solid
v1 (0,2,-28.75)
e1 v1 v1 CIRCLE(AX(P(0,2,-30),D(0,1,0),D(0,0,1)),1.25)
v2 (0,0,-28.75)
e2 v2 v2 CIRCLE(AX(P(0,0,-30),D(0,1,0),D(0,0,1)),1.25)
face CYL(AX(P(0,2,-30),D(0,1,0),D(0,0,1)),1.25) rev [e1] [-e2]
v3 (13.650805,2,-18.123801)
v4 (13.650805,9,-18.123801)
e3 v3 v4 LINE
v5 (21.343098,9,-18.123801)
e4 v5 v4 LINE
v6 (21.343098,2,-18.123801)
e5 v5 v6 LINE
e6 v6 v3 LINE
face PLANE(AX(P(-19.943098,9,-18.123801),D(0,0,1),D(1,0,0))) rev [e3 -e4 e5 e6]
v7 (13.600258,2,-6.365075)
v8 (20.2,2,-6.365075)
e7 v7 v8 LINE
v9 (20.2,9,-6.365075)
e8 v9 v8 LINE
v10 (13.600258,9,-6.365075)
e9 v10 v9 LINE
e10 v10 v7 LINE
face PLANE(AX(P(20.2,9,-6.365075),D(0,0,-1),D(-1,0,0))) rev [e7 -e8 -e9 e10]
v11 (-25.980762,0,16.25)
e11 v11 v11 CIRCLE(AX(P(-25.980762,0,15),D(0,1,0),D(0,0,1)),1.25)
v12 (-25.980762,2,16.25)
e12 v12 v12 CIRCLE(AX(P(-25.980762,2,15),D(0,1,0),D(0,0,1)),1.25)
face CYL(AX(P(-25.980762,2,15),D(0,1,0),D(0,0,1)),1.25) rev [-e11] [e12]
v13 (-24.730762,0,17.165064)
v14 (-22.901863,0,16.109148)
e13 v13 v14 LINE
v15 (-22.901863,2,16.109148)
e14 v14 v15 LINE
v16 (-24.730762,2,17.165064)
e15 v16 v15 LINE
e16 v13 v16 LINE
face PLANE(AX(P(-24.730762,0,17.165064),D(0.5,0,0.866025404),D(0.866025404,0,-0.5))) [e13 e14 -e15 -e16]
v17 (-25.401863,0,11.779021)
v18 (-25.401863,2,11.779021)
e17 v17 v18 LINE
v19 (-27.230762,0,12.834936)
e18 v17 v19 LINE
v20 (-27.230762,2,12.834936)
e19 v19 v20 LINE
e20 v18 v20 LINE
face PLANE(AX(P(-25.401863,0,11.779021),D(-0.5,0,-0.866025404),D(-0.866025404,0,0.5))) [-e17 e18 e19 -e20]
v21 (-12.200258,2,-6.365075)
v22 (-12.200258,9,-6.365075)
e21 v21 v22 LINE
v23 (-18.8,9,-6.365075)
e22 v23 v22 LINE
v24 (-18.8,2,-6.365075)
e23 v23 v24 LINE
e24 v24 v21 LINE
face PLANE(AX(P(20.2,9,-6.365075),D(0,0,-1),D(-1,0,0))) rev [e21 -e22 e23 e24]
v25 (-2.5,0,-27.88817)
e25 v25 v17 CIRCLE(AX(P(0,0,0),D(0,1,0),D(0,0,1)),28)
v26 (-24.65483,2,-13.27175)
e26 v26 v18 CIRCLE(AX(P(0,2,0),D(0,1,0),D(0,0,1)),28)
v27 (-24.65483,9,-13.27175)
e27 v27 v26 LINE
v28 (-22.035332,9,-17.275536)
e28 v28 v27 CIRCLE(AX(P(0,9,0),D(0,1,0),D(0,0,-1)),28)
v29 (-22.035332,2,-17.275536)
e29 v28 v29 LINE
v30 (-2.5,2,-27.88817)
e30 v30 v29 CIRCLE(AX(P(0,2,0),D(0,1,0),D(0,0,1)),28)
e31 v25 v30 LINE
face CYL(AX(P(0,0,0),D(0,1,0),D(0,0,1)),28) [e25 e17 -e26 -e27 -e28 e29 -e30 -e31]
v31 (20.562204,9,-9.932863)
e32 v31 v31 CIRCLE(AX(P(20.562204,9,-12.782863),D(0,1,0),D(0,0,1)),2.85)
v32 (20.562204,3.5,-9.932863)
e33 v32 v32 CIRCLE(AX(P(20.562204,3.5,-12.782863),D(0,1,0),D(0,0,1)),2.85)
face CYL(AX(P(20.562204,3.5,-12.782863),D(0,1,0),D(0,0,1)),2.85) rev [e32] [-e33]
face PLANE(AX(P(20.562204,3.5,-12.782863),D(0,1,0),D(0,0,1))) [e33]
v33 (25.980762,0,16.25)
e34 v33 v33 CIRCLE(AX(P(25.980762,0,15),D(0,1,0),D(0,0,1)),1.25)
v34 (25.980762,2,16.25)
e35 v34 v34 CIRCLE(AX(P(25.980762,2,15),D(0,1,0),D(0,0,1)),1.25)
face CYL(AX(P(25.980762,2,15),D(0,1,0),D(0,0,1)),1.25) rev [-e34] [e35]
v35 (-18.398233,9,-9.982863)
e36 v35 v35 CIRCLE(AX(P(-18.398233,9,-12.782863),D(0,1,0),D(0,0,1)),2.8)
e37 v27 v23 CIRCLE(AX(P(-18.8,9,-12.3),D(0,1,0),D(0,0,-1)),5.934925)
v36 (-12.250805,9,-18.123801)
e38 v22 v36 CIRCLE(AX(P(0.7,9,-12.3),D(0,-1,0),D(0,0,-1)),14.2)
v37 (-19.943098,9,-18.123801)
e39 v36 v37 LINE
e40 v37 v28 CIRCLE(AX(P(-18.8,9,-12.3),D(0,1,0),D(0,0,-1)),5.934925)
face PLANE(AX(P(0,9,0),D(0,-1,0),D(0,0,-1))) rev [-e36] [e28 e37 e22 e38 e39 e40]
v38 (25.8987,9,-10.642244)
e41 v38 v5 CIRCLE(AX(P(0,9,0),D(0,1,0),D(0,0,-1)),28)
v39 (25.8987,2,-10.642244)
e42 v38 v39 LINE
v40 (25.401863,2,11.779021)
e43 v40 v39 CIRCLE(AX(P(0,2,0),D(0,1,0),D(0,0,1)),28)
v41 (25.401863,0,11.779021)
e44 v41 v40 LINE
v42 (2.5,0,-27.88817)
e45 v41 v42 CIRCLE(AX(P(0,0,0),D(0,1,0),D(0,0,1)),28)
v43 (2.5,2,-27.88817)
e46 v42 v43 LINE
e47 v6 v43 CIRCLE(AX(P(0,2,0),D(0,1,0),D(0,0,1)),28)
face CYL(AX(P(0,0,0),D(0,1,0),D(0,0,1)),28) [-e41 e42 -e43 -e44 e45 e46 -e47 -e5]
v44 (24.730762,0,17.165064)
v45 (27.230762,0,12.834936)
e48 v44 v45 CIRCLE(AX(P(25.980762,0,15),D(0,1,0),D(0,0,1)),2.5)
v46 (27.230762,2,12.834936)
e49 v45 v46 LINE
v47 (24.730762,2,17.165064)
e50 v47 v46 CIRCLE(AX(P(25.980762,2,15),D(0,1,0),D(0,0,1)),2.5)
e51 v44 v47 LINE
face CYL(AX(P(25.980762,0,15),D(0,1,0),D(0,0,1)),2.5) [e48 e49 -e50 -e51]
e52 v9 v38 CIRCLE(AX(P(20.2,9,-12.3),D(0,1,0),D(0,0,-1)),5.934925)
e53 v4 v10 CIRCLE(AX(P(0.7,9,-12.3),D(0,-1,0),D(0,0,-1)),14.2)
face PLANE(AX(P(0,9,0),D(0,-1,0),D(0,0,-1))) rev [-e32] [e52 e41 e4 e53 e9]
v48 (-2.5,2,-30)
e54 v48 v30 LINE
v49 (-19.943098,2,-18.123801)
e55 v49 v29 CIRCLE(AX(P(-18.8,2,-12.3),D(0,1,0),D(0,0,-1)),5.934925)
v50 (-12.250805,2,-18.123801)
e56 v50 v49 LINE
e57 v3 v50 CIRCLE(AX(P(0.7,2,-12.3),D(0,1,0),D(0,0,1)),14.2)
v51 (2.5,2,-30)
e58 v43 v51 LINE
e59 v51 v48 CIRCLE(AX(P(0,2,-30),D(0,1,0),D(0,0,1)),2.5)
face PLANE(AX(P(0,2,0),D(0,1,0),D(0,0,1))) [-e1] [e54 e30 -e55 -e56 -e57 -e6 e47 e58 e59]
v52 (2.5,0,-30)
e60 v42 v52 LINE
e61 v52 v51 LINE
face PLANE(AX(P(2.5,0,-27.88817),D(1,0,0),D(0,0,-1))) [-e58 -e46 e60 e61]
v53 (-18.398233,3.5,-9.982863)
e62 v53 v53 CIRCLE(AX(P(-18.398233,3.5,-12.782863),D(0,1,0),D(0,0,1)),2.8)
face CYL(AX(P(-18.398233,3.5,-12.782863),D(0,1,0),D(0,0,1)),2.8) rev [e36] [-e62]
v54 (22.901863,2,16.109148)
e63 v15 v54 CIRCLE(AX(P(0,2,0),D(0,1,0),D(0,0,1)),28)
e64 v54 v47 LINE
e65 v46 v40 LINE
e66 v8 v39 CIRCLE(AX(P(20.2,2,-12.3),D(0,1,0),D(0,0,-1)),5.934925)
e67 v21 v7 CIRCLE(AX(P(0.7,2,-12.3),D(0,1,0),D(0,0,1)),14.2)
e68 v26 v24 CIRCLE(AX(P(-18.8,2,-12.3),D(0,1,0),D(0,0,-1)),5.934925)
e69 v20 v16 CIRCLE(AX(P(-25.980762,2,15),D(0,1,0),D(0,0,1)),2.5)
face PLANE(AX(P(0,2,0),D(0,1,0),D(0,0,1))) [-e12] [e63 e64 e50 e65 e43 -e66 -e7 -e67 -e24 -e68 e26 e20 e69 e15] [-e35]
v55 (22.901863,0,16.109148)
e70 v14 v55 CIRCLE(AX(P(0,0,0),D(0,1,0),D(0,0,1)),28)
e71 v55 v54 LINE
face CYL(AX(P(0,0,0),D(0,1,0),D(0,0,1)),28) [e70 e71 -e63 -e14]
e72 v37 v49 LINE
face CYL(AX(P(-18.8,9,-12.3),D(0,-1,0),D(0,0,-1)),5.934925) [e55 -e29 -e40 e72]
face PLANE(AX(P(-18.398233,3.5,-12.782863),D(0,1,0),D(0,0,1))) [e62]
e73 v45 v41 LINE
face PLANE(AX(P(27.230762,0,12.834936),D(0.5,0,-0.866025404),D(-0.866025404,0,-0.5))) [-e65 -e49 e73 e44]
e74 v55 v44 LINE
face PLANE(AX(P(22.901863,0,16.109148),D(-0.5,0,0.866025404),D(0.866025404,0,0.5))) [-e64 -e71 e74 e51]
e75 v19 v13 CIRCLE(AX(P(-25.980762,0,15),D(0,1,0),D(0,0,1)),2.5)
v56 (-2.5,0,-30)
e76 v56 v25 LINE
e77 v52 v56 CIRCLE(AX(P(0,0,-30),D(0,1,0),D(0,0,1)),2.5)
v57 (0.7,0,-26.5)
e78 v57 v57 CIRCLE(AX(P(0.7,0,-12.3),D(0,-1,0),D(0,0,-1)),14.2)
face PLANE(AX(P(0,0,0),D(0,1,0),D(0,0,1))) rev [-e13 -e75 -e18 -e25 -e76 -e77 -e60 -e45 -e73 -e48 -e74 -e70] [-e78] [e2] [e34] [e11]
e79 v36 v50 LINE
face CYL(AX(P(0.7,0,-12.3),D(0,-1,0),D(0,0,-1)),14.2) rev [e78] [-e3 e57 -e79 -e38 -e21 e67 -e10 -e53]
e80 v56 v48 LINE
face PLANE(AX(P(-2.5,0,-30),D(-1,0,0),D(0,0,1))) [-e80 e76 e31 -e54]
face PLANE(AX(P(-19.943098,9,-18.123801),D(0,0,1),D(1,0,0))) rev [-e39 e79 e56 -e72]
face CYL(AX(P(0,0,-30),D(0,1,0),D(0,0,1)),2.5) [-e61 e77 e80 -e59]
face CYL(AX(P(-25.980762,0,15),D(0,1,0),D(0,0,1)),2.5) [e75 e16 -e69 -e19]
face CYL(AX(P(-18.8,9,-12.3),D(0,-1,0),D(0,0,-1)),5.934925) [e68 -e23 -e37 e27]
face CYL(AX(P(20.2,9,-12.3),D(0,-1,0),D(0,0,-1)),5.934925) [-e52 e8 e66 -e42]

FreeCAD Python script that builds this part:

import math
import FreeCAD as App
import Part
import Sketcher
from FreeCAD import Vector
Q = App.Units.Quantity

doc = App.newDocument("Part")
body = doc.addObject("PartDesign::Body", "Body")

# Sketch on XZ plane
sketch1 = doc.addObject("Sketcher::SketchObject", "Sketch")
body.addObject(sketch1)
sketch1.AttachmentSupport = (doc.XZ_Plane, [""])
sketch1.MapMode = "FlatFace"
sketch1.AttachmentOffset = App.Placement(Vector(0, 0, -2), App.Rotation())
sketch1.addGeometry([
    Part.LineSegment(Vector(-25.4, 11.8, 0), Vector(-27.2, 12.8, 0)),  # 0
    Part.ArcOfCircle(Part.Circle(Vector(-26, 15, 0), Vector(0, 0, 1), 2.5), math.radians(60), math.radians(240)),  # 1
    Part.LineSegment(Vector(-24.7, 17.2, 0), Vector(-22.9, 16.1, 0)),  # 2
    Part.ArcOfCircle(Part.Circle(Vector(0, 0, 0), Vector(0, 0, 1), 28), math.radians(35), math.radians(145)),  # 3
    Part.LineSegment(Vector(22.9, 16.1, 0), Vector(24.7, 17.2, 0)),  # 4
    Part.ArcOfCircle(Part.Circle(Vector(26, 15, 0), Vector(0, 0, 1), 2.5), math.radians(-60), math.radians(120)),  # 5
    Part.LineSegment(Vector(27.2, 12.8, 0), Vector(25.4, 11.8, 0)),  # 6
    Part.ArcOfCircle(Part.Circle(Vector(0, 0, 0), Vector(0, 0, 1), 28), math.radians(-85), math.radians(25)),  # 7
    Part.LineSegment(Vector(2.5, -27.9, 0), Vector(2.5, -30, 0)),  # 8
    Part.ArcOfCircle(Part.Circle(Vector(0, -30, 0), Vector(0, 0, 1), 2.5), math.radians(180), math.radians(360)),  # 9
    Part.LineSegment(Vector(-2.5, -30, 0), Vector(-2.5, -27.9, 0)),  # 10
    Part.ArcOfCircle(Part.Circle(Vector(0, 0, 0), Vector(0, 0, 1), 28), math.radians(155), math.radians(265)),  # 11
], False)
sketch1.addConstraint([
    Sketcher.Constraint("Tangent", 0, 2, 1, 2),
    Sketcher.Constraint("Tangent", 1, 1, 2, 1),
    Sketcher.Constraint("Coincident", 2, 2, 3, 2),
    Sketcher.Constraint("Coincident", 3, 1, 4, 1),
    Sketcher.Constraint("Tangent", 4, 2, 5, 2),
    Sketcher.Constraint("Tangent", 5, 1, 6, 1),
    Sketcher.Constraint("Coincident", 6, 2, 7, 2),
    Sketcher.Constraint("Coincident", 7, 1, 8, 1),
    Sketcher.Constraint("Tangent", 8, 2, 9, 2),
    Sketcher.Constraint("Tangent", 9, 1, 10, 1),
    Sketcher.Constraint("Coincident", 10, 2, 11, 2),
    Sketcher.Constraint("Coincident", 11, 1, 0, 1),
    Sketcher.Constraint("Vertical", 8),
    Sketcher.Constraint("Vertical", 10),
    Sketcher.Constraint("Coincident", 3, 3, -1, 1),
    Sketcher.Constraint("Coincident", 7, 3, -1, 1),
    Sketcher.Constraint("Coincident", 11, 3, -1, 1),
    Sketcher.Constraint("Equal", 1, 5),
    Sketcher.Constraint("Equal", 3, 7),
    Sketcher.Constraint("Equal", 5, 9),
    Sketcher.Constraint("Equal", 7, 11),
    Sketcher.Constraint("Symmetric", 1, 3, 5, 3, -2),
    Sketcher.Constraint("PointOnObject", 9, 3, -2),
    Sketcher.Constraint("Parallel", 0, 2),
    Sketcher.Constraint("Parallel", 4, 6),
    Sketcher.Constraint("Horizontal", 2, 2, 3, 1),
    Sketcher.Constraint("Equal", 0, 2),
    Sketcher.Constraint("Radius", 3, 28.0),
    Sketcher.Constraint("Radius", 1, 2.5),
    Sketcher.Constraint("Angle", 0, Q("150 deg")),
    Sketcher.Constraint("DistanceY", -1, 1, 1, 3, 15.0),
    Sketcher.Constraint("DistanceY", 9, 3, -1, 1, 30.0),
])
pad1 = doc.addObject("PartDesign::Pad", "Pad")
body.addObject(pad1)
pad1.Profile = sketch1
pad1.Length = 2

# Sketch on XZ plane
sketch2 = doc.addObject("Sketcher::SketchObject", "Sketch001")
body.addObject(sketch2)
sketch2.AttachmentSupport = (doc.XZ_Plane, [""])
sketch2.MapMode = "FlatFace"
sketch2.AttachmentOffset = App.Placement(Vector(0, 0, -9), App.Rotation())
sketch2.addGeometry([
    Part.LineSegment(Vector(-18.8, -6.4, 0), Vector(20.2, -6.4, 0)),  # 0
    Part.ArcOfCircle(Part.Circle(Vector(20.2, -12.3, 0), Vector(0, 0, 1), 5.9), math.radians(16), math.radians(90)),  # 1
    Part.ArcOfCircle(Part.Circle(Vector(0, 0, 0), Vector(0, 0, 1), 28), math.radians(-40.34), math.radians(-22.34)),  # 2
    Part.LineSegment(Vector(21.3, -18.1, 0), Vector(-19.9, -18.1, 0)),  # 3
    Part.ArcOfCircle(Part.Circle(Vector(-18.8, -12.3, 0), Vector(0, 0, 1), 5.9), math.radians(-123), math.radians(-101)),  # 4
    Part.ArcOfCircle(Part.Circle(Vector(0, 0, 0), Vector(0, 0, 1), 28), math.radians(-151.71), math.radians(-141.9)),  # 5
    Part.ArcOfCircle(Part.Circle(Vector(-18.8, -12.3, 0), Vector(0, 0, 1), 5.9), math.radians(90), math.radians(189)),  # 6
], False)
sketch2.addConstraint([
    Sketcher.Constraint("Tangent", 0, 2, 1, 2),
    Sketcher.Constraint("Coincident", 1, 1, 2, 2),
    Sketcher.Constraint("Coincident", 2, 1, 3, 1),
    Sketcher.Constraint("Coincident", 3, 2, 4, 2),
    Sketcher.Constraint("Coincident", 4, 1, 5, 2),
    Sketcher.Constraint("Coincident", 5, 1, 6, 2),
    Sketcher.Constraint("Tangent", 6, 1, 0, 1),
    Sketcher.Constraint("Horizontal", 0),
    Sketcher.Constraint("Horizontal", 3),
    Sketcher.Constraint("Coincident", 2, 3, -1, 1),
    Sketcher.Constraint("Coincident", 5, 3, -1, 1),
    Sketcher.Constraint("Coincident", 6, 3, 4, 3),
    Sketcher.Constraint("Equal", 1, 4),
    Sketcher.Constraint("Equal", 2, 5),
    Sketcher.Constraint("Equal", 4, 6),
    Sketcher.Constraint("Radius", 2, 28.0),
    Sketcher.Constraint("DistanceX", 0, 1, 0, 2, 39.0),
    Sketcher.Constraint("DistanceX", -1, 1, 1, 3, 20.2),
    Sketcher.Constraint("DistanceY", 1, 3, -1, 1, 12.3),
    Sketcher.Constraint("Radius", 1, 5.934925),
    Sketcher.Constraint("DistanceY", 2, 1, -1, 1, 18.123801),
])
pad2 = doc.addObject("PartDesign::Pad", "Pad001")
body.addObject(pad2)
pad2.Profile = sketch2
pad2.Length = 7

# Sketch on XZ plane
sketch3 = doc.addObject("Sketcher::SketchObject", "Sketch002")
body.addObject(sketch3)
sketch3.AttachmentSupport = (doc.XZ_Plane, [""])
sketch3.MapMode = "FlatFace"
sketch3.AttachmentOffset = App.Placement(Vector(0, 0, -2), App.Rotation())
sketch3.addGeometry([
    Part.Circle(Vector(-26, 15, 0), Vector(0, 0, 1), 1.2),
    Part.Circle(Vector(26, 15, 0), Vector(0, 0, 1), 1.2),
    Part.Circle(Vector(0, -30, 0), Vector(0, 0, 1), 1.2),
], False)
sketch3.addConstraint([
    Sketcher.Constraint("Equal", 0, 1),
    Sketcher.Constraint("Equal", 1, 2),
    Sketcher.Constraint("Symmetric", 0, 3, 1, 3, -2),
    Sketcher.Constraint("PointOnObject", 2, 3, -2),
    Sketcher.Constraint("Diameter", 0, 2.5),
    Sketcher.Constraint("DistanceY", -1, 1, 0, 3, 15.0),
    Sketcher.Constraint("DistanceY", 2, 3, -1, 1, 30.0),
    Sketcher.Constraint("DistanceX", 0, 3, -1, 1, 25.980762),
])
doc.recompute()
hole = doc.addObject("PartDesign::Hole", "Hole")
body.addObject(hole)
hole.Profile = sketch3
hole.ThreadType = "None"
hole.Diameter = 2.5
hole.DepthType = "ThroughAll"
hole.Reversed = True

# Sketch on XZ plane
sketch4 = doc.addObject("Sketcher::SketchObject", "Sketch003")
body.addObject(sketch4)
sketch4.AttachmentSupport = (doc.XZ_Plane, [""])
sketch4.MapMode = "FlatFace"
sketch4.addGeometry(Part.Circle(Vector(1, -12, 0), Vector(0, 0, 1), 14), False)
sketch4.addConstraint([
    Sketcher.Constraint("Diameter", 0, 28.4),
    Sketcher.Constraint("DistanceX", -1, 1, 0, 3, 0.7),
    Sketcher.Constraint("DistanceY", 0, 3, -1, 1, 12.3),
])
doc.recompute()
hole2 = doc.addObject("PartDesign::Hole", "Hole001")
body.addObject(hole2)
hole2.Profile = sketch4
hole2.ThreadType = "None"
hole2.Diameter = 28.4
hole2.DepthType = "ThroughAll"

# Sketch on XZ plane
sketch5 = doc.addObject("Sketcher::SketchObject", "Sketch004")
body.addObject(sketch5)
sketch5.AttachmentSupport = (doc.XZ_Plane, [""])
sketch5.MapMode = "FlatFace"
sketch5.AttachmentOffset = App.Placement(Vector(0, 0, -9), App.Rotation())
sketch5.addGeometry([
    Part.Circle(Vector(-18.4, -12.8, 0), Vector(0, 0, 1), 2.8),
    Part.Circle(Vector(20.6, -12.8, 0), Vector(0, 0, 1), 2.9),
], False)
sketch5.addConstraint([
    Sketcher.Constraint("Horizontal", 0, 3, 1, 3),
    Sketcher.Constraint("Diameter", 0, 5.6),
    Sketcher.Constraint("Diameter", 1, 5.7),
    Sketcher.Constraint("DistanceX", 0, 3, -1, 1, 18.398233),
    Sketcher.Constraint("DistanceY", 0, 3, -1, 1, 12.782863),
    Sketcher.Constraint("DistanceX", -1, 1, 1, 3, 20.562204),
])
pocket1 = doc.addObject("PartDesign::Pocket", "Pocket")
body.addObject(pocket1)
pocket1.Profile = sketch5
pocket1.Length = 5.5
pocket1.Reversed = True

doc.recompute()
